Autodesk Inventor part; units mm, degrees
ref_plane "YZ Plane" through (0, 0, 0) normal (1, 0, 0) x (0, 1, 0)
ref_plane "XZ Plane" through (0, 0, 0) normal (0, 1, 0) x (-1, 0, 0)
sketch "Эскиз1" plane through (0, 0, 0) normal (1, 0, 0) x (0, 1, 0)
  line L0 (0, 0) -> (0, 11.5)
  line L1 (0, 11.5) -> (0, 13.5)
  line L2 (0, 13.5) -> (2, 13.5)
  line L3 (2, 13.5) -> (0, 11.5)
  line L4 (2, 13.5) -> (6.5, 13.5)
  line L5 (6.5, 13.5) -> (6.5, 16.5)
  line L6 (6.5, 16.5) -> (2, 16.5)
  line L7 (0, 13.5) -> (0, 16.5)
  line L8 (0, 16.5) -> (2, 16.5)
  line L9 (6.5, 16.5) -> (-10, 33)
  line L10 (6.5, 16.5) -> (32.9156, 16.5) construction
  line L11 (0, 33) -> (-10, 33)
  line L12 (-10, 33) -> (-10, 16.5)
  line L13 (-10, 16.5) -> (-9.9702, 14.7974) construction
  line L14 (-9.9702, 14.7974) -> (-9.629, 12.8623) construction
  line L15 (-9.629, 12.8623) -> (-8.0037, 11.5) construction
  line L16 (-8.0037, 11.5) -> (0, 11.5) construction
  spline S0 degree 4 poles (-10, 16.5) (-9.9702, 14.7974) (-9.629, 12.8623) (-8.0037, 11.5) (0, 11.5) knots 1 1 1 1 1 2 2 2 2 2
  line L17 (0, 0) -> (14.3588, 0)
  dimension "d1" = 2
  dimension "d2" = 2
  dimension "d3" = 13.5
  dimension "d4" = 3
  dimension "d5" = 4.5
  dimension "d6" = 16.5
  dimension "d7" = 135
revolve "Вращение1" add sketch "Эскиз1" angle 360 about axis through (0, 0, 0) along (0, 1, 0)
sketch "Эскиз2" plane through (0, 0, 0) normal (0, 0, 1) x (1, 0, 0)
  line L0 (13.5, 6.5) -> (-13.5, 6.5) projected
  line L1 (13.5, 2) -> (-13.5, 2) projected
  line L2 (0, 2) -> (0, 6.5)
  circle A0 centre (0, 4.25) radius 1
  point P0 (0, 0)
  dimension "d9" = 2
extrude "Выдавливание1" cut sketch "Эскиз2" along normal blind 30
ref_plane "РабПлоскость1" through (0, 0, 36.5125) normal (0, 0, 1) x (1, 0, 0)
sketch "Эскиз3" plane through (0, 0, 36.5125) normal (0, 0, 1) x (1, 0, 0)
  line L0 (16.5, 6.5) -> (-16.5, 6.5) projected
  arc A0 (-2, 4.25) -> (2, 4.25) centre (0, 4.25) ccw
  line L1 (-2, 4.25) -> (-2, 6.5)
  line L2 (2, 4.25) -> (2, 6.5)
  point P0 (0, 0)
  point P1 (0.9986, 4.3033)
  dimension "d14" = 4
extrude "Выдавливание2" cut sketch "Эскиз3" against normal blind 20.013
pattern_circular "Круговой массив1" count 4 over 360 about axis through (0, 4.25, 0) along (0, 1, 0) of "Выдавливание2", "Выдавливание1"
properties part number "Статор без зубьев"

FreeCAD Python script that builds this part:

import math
import FreeCAD as App
import Part
import Sketcher

V = App.Vector
Q = App.Units.Quantity

doc = App.newDocument("Part")
body = doc.addObject("PartDesign::Body", "Body")

# Sketch on YZ plane
sketch1 = body.newObject("Sketcher::SketchObject", "Sketch")
sketch1.AttachmentSupport = (doc.getObject("YZ_Plane"), [""])
sketch1.MapMode = "FlatFace"
sketch1.addGeometry(Part.BSplineCurve([V(-10, 16.5, 0), V(-9.9702, 14.7974, 0), V(-9.629, 12.8623, 0), V(-8.0037, 11.5, 0), V(0, 11.5, 0)], [5, 5], [1, 2], False, 4, [1, 1, 1, 1, 1], False), False)
sketch1.addGeometry(Part.LineSegment(V(0, 11.5, 0), V(2, 13.5, 0)), False)
sketch1.addGeometry(Part.LineSegment(V(2, 13.5, 0), V(6.5, 13.5, 0)), False)
sketch1.addGeometry(Part.LineSegment(V(6.5, 13.5, 0), V(6.5, 16.5, 0)), False)
sketch1.addGeometry(Part.LineSegment(V(6.5, 16.5, 0), V(-10, 33, 0)), False)
sketch1.addGeometry(Part.LineSegment(V(-10, 33, 0), V(-10, 16.5, 0)), False)
sketch1.addConstraint(Sketcher.Constraint("Block", 0))
sketch1.addConstraint(Sketcher.Constraint("Coincident", 0, 2, 1, 1))
sketch1.addConstraint(Sketcher.Constraint("Coincident", 1, 2, 2, 1))
sketch1.addConstraint(Sketcher.Constraint("Coincident", 2, 2, 3, 1))
sketch1.addConstraint(Sketcher.Constraint("Coincident", 3, 2, 4, 1))
sketch1.addConstraint(Sketcher.Constraint("Coincident", 4, 2, 5, 1))
sketch1.addConstraint(Sketcher.Constraint("Coincident", 5, 2, 0, 1))
sketch1.addConstraint(Sketcher.Constraint("Horizontal", 2))
sketch1.addConstraint(Sketcher.Constraint("Vertical", 3))
sketch1.addConstraint(Sketcher.Constraint("Vertical", 5))
sketch1.addConstraint(Sketcher.Constraint("DistanceY", 3, 1, 3, 2, Q("3 mm")))
sketch1.addConstraint(Sketcher.Constraint("DistanceX", 2, 1, 2, 2, Q("4.5 mm")))
sketch1.addConstraint(Sketcher.Constraint("DistanceY", 5, 2, 5, 1, Q("16.5 mm")))
sketch1.addConstraint(Sketcher.Constraint("DistanceX", -1, 1, 1, 2, Q("2 mm")))
sketch1.addConstraint(Sketcher.Constraint("DistanceY", 1, 2, 5, 2, Q("3 mm")))
revolution = body.newObject("PartDesign::Revolution", "Revolution")
revolution.Profile = sketch1
revolution.ReferenceAxis = (sketch1, ["H_Axis"])
revolution.Angle = 360

# Sketch on XY plane
sketch2 = body.newObject("Sketcher::SketchObject", "Sketch001")
sketch2.AttachmentSupport = (doc.getObject("XY_Plane"), [""])
sketch2.MapMode = "FlatFace"
sketch2.addGeometry(Part.Circle(V(0, 4.2, 0), V(0, 0, 1), 1), False)
sketch2.addConstraint(Sketcher.Constraint("PointOnObject", 0, 3, -2))
sketch2.addConstraint(Sketcher.Constraint("Diameter", 0, Q("2 mm")))
sketch2.addConstraint(Sketcher.Constraint("DistanceY", -1, 1, 0, 3, Q("4.25 mm")))
pocket1 = body.newObject("PartDesign::Pocket", "Pocket")
pocket1.Profile = sketch2
pocket1.Length = 30
pocket1.Reversed = True

# Sketch on XY plane
sketch3 = body.newObject("Sketcher::SketchObject", "Sketch002")
sketch3.AttachmentSupport = (doc.getObject("XY_Plane"), [""])
sketch3.MapMode = "FlatFace"
sketch3.AttachmentOffset = App.Placement(V(0, 0, 36.5125), App.Rotation())
sketch3.addGeometry(Part.LineSegment(V(2, 4.2, 0), V(2, 6.5, 0)), False)
sketch3.addGeometry(Part.LineSegment(V(2, 6.5, 0), V(-2, 6.5, 0)), False)
sketch3.addGeometry(Part.LineSegment(V(-2, 6.5, 0), V(-2, 4.2, 0)), False)
sketch3.addGeometry(Part.ArcOfCircle(Part.Circle(V(0, 4.2, 0), V(0, 0, 1), 2), math.radians(180), math.radians(360)), False)
sketch3.addConstraint(Sketcher.Constraint("Coincident", 0, 2, 1, 1))
sketch3.addConstraint(Sketcher.Constraint("Coincident", 1, 2, 2, 1))
sketch3.addConstraint(Sketcher.Constraint("Tangent", 2, 2, 3, 1))
sketch3.addConstraint(Sketcher.Constraint("Tangent", 3, 2, 0, 1))
sketch3.addConstraint(Sketcher.Constraint("Vertical", 0))
sketch3.addConstraint(Sketcher.Constraint("Horizontal", 1))
sketch3.addConstraint(Sketcher.Constraint("Vertical", 2))
sketch3.addConstraint(Sketcher.Constraint("PointOnObject", 3, 3, -2))
sketch3.addConstraint(Sketcher.Constraint("Radius", 3, Q("2 mm")))
sketch3.addConstraint(Sketcher.Constraint("DistanceY", 0, 1, 0, 2, Q("2.25 mm")))
sketch3.addConstraint(Sketcher.Constraint("DistanceY", -1, 1, 0, 2, Q("6.5 mm")))
pocket2 = body.newObject("PartDesign::Pocket", "Pocket001")
pocket2.Profile = sketch3
pocket2.Length = 20.013
doc.recompute()

polarpattern = body.newObject("PartDesign::PolarPattern", "PolarPattern")
polarpattern.Originals = [pocket2, pocket1]
polarpattern.Axis = (doc.getObject("Y_Axis"), [""])
polarpattern.Angle = 360
polarpattern.Occurrences = 4
body.Tip = polarpattern

doc.recompute()
